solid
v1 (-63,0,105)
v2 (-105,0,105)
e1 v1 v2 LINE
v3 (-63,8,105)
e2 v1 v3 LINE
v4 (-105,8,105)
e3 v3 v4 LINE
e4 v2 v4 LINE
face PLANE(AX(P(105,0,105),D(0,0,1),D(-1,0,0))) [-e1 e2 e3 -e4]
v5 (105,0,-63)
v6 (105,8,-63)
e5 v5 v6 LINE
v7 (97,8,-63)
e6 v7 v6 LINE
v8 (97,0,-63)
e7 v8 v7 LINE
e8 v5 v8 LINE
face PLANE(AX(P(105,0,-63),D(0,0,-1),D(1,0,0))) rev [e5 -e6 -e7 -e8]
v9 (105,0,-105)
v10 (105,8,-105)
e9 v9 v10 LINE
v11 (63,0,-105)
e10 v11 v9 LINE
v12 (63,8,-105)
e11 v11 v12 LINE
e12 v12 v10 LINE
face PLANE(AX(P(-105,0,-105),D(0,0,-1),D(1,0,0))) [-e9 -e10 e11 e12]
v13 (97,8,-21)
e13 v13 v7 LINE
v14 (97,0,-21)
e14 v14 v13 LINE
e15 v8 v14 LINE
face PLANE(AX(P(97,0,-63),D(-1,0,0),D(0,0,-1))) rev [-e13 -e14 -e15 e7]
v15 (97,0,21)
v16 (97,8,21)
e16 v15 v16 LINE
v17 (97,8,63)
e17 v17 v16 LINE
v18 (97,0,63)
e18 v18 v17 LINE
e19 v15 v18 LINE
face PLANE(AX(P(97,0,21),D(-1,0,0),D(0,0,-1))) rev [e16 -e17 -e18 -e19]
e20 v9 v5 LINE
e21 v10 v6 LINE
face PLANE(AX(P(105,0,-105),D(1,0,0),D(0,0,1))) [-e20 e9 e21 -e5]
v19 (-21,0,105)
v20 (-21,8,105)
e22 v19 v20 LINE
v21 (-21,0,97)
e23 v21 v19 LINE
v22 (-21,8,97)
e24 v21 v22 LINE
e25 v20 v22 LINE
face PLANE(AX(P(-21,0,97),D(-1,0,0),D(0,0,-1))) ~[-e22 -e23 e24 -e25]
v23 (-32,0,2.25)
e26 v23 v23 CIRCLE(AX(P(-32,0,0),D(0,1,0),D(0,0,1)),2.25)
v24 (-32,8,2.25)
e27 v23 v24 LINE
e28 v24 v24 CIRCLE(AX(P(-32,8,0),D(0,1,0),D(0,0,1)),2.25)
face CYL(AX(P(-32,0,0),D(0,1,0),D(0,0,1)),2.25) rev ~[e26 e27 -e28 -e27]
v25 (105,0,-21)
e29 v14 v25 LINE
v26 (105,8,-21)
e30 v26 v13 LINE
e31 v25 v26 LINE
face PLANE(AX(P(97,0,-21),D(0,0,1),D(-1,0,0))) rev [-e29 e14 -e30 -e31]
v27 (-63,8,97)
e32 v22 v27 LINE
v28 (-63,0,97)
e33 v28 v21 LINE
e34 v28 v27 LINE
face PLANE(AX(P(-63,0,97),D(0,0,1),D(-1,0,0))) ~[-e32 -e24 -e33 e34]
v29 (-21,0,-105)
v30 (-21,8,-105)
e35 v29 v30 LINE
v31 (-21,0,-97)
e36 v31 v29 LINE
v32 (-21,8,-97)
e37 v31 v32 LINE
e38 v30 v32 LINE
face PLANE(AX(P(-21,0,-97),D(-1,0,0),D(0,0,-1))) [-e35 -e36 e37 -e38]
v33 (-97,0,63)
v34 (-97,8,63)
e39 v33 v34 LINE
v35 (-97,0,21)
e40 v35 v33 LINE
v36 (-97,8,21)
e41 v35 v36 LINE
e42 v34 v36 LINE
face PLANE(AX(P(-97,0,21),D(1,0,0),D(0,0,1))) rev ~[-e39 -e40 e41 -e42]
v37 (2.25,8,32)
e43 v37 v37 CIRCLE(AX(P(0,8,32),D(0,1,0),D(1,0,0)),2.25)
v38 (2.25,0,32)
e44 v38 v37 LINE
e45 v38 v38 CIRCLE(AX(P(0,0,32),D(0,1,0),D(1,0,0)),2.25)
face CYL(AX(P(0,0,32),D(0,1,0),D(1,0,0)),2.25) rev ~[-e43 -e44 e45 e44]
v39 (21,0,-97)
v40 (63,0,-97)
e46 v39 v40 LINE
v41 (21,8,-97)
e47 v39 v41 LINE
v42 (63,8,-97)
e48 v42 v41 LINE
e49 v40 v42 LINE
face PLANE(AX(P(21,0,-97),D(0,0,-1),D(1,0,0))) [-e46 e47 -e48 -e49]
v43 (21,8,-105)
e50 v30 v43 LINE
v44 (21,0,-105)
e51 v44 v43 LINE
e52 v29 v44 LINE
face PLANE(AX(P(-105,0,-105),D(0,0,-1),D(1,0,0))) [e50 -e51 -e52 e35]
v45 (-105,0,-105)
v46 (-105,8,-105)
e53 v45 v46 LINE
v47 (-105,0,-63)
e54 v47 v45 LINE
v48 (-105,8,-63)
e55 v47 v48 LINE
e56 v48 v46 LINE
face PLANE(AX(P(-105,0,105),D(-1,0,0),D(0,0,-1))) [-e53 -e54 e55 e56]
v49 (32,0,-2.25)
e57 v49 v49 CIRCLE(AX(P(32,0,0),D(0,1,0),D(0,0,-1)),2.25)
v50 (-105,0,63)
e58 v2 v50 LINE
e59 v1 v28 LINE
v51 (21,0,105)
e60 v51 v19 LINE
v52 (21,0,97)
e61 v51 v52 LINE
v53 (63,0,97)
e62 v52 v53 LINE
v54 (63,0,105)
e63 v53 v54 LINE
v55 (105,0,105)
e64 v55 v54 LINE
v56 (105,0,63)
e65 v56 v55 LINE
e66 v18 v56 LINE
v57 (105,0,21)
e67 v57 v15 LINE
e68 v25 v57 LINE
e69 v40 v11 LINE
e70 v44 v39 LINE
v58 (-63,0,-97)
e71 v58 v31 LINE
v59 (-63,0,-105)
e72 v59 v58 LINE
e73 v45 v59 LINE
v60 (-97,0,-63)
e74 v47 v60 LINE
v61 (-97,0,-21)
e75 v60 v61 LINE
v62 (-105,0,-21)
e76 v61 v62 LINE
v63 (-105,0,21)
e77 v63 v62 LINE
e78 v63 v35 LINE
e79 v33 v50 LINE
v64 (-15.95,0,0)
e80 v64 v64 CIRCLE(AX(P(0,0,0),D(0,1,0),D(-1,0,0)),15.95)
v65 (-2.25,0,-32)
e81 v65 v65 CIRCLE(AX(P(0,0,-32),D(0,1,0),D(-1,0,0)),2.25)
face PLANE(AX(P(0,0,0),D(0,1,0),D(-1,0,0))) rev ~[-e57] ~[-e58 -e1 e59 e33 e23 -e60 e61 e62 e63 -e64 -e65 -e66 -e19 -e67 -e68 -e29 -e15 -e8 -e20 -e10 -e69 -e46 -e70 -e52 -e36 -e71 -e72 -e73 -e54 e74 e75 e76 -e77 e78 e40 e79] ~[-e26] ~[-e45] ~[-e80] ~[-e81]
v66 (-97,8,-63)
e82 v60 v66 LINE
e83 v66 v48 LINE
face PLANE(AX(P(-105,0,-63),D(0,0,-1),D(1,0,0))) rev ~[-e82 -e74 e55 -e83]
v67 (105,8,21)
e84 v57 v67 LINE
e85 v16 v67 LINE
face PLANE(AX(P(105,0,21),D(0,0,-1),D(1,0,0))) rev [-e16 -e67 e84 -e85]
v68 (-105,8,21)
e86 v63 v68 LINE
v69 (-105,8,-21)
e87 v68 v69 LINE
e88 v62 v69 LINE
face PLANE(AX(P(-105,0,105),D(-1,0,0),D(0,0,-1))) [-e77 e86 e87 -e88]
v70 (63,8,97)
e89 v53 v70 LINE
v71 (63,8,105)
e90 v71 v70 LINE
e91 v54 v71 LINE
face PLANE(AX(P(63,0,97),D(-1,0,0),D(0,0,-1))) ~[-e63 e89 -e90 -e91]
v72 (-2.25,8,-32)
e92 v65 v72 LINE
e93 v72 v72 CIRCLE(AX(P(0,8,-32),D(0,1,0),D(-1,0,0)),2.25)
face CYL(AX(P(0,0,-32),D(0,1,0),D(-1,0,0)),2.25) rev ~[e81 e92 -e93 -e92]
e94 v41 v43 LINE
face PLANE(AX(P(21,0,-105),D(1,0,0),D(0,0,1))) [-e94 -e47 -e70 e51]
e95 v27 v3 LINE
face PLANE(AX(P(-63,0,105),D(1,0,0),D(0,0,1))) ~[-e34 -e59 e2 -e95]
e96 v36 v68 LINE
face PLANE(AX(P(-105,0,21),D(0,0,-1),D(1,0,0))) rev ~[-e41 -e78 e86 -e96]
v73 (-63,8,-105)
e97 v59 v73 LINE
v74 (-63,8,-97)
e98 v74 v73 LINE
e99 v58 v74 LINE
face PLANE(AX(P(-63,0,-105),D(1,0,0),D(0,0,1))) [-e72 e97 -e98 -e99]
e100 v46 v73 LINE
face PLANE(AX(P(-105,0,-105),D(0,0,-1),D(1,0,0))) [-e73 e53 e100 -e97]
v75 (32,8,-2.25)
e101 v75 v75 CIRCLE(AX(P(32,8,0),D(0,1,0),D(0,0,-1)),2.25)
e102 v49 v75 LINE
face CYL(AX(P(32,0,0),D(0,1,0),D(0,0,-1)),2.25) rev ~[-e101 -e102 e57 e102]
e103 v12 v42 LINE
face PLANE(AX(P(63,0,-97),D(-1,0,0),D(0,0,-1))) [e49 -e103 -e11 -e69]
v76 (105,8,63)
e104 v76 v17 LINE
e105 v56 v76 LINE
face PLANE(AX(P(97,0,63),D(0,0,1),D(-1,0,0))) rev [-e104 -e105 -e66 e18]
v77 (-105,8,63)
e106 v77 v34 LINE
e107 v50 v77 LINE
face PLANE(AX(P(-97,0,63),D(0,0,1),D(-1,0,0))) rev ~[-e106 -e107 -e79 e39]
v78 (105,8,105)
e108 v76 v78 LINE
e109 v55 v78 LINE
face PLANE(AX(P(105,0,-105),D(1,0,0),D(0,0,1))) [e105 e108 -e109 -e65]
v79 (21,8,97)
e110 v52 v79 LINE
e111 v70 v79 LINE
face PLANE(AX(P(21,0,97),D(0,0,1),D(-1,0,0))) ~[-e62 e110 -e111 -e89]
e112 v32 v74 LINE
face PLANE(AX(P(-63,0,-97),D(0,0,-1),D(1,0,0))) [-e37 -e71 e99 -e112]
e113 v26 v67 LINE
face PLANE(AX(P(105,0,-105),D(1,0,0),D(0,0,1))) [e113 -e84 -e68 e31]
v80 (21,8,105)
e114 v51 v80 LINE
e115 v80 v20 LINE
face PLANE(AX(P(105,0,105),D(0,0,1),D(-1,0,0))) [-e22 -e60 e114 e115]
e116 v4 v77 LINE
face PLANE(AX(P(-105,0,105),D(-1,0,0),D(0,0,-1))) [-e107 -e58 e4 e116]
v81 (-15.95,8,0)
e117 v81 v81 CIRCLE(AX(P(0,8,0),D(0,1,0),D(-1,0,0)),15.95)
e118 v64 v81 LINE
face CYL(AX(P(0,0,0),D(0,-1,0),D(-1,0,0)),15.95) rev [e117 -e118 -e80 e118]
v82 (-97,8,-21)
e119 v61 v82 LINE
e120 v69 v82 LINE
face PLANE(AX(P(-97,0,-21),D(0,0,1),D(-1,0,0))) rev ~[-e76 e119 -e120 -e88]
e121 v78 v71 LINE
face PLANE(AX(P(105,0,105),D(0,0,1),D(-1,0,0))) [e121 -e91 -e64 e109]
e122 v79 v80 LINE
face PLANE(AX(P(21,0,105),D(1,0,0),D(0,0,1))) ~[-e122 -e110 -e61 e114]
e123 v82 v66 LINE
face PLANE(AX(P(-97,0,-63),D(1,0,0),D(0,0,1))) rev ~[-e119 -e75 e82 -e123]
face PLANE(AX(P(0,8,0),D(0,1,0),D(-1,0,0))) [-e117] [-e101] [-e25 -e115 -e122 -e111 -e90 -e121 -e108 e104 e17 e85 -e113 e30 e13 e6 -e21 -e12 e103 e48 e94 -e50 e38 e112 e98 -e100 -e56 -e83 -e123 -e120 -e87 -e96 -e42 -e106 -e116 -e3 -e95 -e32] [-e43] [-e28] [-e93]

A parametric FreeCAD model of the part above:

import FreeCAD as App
import Part
import Sketcher

V = App.Vector


def add_polygon(sketch, points):
    """Adds a closed chain of lines whose ends are joined by coincident constraints."""
    first, n = sketch.GeometryCount, len(points)
    for a, b in zip(points, points[1:] + points[:1]):
        sketch.addGeometry(Part.LineSegment(App.Vector(*a, 0), App.Vector(*b, 0)), False)
    for i in range(n):
        sketch.addConstraint(Sketcher.Constraint("Coincident", first + i, 2, first + (i + 1) % n, 1))

doc = App.newDocument("Part")
body = doc.addObject("PartDesign::Body", "Body")

sketch1 = body.newObject("Sketcher::SketchObject", "Sketch")
sketch1.AttachmentSupport = (doc.getObject("XZ_Plane"), [""])
sketch1.MapMode = "FlatFace"
add_polygon(sketch1, [(-105, 105), (105, 105), (105, -105), (-105, -105)])
sketch1.addGeometry(Part.Circle(V(0, 0, 0), V(0, 0, 1), 16), False)
sketch1.addConstraint([
    Sketcher.Constraint("Horizontal", 0),
    Sketcher.Constraint("Vertical", 1),
    Sketcher.Constraint("Horizontal", 2),
    Sketcher.Constraint("Vertical", 3),
    Sketcher.Constraint("Coincident", 4, 3, -1, 1),
    Sketcher.Constraint("Symmetric", 0, 2, 2, 2, -1, 1),
    Sketcher.Constraint("Equal", 2, 1),
    Sketcher.Constraint("Diameter", 4, 31.9),
    Sketcher.Constraint("DistanceX", 0, 1, 0, 2, 210.0),
])
pad1 = body.newObject("PartDesign::Pad", "Pad")
pad1.Profile = sketch1
pad1.Length = 8
pad1.Reversed = True

sketch2 = body.newObject("Sketcher::SketchObject", "Sketch001")
sketch2.AttachmentSupport = (doc.getObject("XZ_Plane"), [""])
sketch2.MapMode = "FlatFace"
sketch2.addGeometry(Part.Circle(V(32, 0, 0), V(0, 0, 1), 2.2), False)
sketch2.addConstraint([
    Sketcher.Constraint("PointOnObject", 0, 3, -1),
    Sketcher.Constraint("Diameter", 0, 4.5),
    Sketcher.Constraint("DistanceX", -1, 1, 0, 3, 32.0),
])
doc.recompute()
hole = body.newObject("PartDesign::Hole", "Hole")
hole.Profile = sketch2
hole.ThreadType = "None"
hole.Diameter = 4.5
hole.DepthType = "Dimension"
hole.Depth = 8
hole.DrillPoint = "Angled"
hole.DrillPointAngle = 118
doc.recompute()

polarpattern = body.newObject("PartDesign::PolarPattern", "PolarPattern")
polarpattern.Originals = [hole]
polarpattern.Axis = (doc.getObject("Y_Axis"), [""])
polarpattern.Angle = 360
polarpattern.Occurrences = 4
body.Tip = polarpattern

sketch3 = body.newObject("Sketcher::SketchObject", "Sketch002")
sketch3.AttachmentSupport = (doc.getObject("XZ_Plane"), [""])
sketch3.MapMode = "FlatFace"
add_polygon(sketch3, [(-97, 63), (-105, 63), (-105, 21), (-97, 21)])
add_polygon(sketch3, [(-105, -63), (-97, -63), (-97, -21), (-105, -21)])
sketch3.addConstraint([
    Sketcher.Constraint("Horizontal", 0),
    Sketcher.Constraint("Vertical", 1),
    Sketcher.Constraint("Horizontal", 2),
    Sketcher.Constraint("Vertical", 3),
    Sketcher.Constraint("Horizontal", 4),
    Sketcher.Constraint("Vertical", 5),
    Sketcher.Constraint("Horizontal", 6),
    Sketcher.Constraint("Vertical", 7),
    Sketcher.Constraint("Symmetric", 3, 2, 4, 2, -1),
    Sketcher.Constraint("Symmetric", 1, 2, 6, 2, -1),
    Sketcher.Constraint("DistanceX", 0, 2, 0, 1, 8.0),
    Sketcher.Constraint("DistanceY", 1, 2, 1, 1, 42.0),
    Sketcher.Constraint("DistanceX", 0, 2, -1, 1, 105.0),
    Sketcher.Constraint("DistanceY", -1, 1, 0, 2, 63.0),
])
pocket1 = body.newObject("PartDesign::Pocket", "Pocket")
pocket1.Profile = sketch3
pocket1.Type = "ThroughAll"

sketch4 = body.newObject("Sketcher::SketchObject", "Sketch003")
sketch4.AttachmentSupport = (doc.getObject("XZ_Plane"), [""])
sketch4.MapMode = "FlatFace"
add_polygon(sketch4, [(21, -105), (63, -105), (63, -97), (21, -97)])
add_polygon(sketch4, [(-63, -97), (-63, -105), (-21, -105), (-21, -97)])
sketch4.addConstraint([
    Sketcher.Constraint("Horizontal", 0),
    Sketcher.Constraint("Vertical", 1),
    Sketcher.Constraint("Horizontal", 2),
    Sketcher.Constraint("Vertical", 3),
    Sketcher.Constraint("Vertical", 4),
    Sketcher.Constraint("Horizontal", 5),
    Sketcher.Constraint("Vertical", 6),
    Sketcher.Constraint("Horizontal", 7),
    Sketcher.Constraint("Symmetric", 0, 2, 4, 2, -2),
    Sketcher.Constraint("Symmetric", 2, 2, 6, 2, -2),
    Sketcher.Constraint("DistanceY", 1, 1, 1, 2, 8.0),
    Sketcher.Constraint("DistanceX", 0, 1, 0, 2, 42.0),
    Sketcher.Constraint("DistanceX", -1, 1, 0, 2, 63.0),
    Sketcher.Constraint("DistanceY", 0, 2, -1, 1, 105.0),
])
pocket2 = body.newObject("PartDesign::Pocket", "Pocket001")
pocket2.Profile = sketch4
pocket2.Type = "ThroughAll"
doc.recompute()

mirrored = body.newObject("PartDesign::Mirrored", "Mirrored")
mirrored.Originals = [pocket1]
mirrored.MirrorPlane = (doc.getObject("YZ_Plane"), [""])
body.Tip = mirrored
doc.recompute()

mirrored2 = body.newObject("PartDesign::Mirrored", "Mirrored001")
mirrored2.Originals = [pocket2]
mirrored2.MirrorPlane = (doc.getObject("XY_Plane"), [""])
body.Tip = mirrored2

doc.recompute()
